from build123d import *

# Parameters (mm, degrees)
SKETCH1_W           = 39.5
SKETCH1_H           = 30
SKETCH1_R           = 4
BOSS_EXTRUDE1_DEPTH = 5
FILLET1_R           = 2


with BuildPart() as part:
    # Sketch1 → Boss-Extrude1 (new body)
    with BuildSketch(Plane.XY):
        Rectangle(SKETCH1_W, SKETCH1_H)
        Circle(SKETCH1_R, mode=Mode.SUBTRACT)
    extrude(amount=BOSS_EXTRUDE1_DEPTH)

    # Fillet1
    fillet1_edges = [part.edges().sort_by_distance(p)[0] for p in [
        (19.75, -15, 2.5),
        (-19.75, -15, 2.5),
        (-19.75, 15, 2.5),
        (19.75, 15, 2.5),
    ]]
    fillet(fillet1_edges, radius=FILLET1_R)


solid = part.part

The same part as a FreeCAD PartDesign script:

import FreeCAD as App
import Part
import Sketcher
from FreeCAD import Vector


def edges_at(feature, points):
    """Names of the edges that pass closest to the given points."""
    edges = feature.Shape.Edges
    near = lambda p: min(range(len(edges)), key=lambda i: edges[i].distToShape(Part.Vertex(*p))[0])
    return sorted({f"Edge{near(p) + 1}" for p in points})


def add_polygon(sketch, points):
    """Adds a closed chain of lines whose ends are joined by coincident constraints."""
    first, n = sketch.GeometryCount, len(points)
    for a, b in zip(points, points[1:] + points[:1]):
        sketch.addGeometry(Part.LineSegment(App.Vector(*a, 0), App.Vector(*b, 0)), False)
    for i in range(n):
        sketch.addConstraint(Sketcher.Constraint("Coincident", first + i, 2, first + (i + 1) % n, 1))

doc = App.newDocument("Part")
body = doc.addObject("PartDesign::Body", "Body")

sketch1 = body.newObject("Sketcher::SketchObject", "Sketch")
sketch1.AttachmentSupport = (doc.getObject("XY_Plane"), [""])
sketch1.MapMode = "FlatFace"
add_polygon(sketch1, [(-19.8, 15), (-19.8, -15), (19.8, -15), (19.8, 15)])
sketch1.addGeometry(Part.Circle(Vector(0, 0, 0), Vector(0, 0, 1), 4), False)
sketch1.addConstraint(Sketcher.Constraint("Vertical", 0))
sketch1.addConstraint(Sketcher.Constraint("Horizontal", 1))
sketch1.addConstraint(Sketcher.Constraint("Vertical", 2))
sketch1.addConstraint(Sketcher.Constraint("Horizontal", 3))
sketch1.addConstraint(Sketcher.Constraint("Coincident", 4, 3, -1, 1))
sketch1.addConstraint(Sketcher.Constraint("Symmetric", 0, 2, 2, 2, -1, 1))
sketch1.addConstraint(Sketcher.Constraint("Diameter", 4, 8.0))
sketch1.addConstraint(Sketcher.Constraint("DistanceY", 0, 2, 0, 1, 30.0))
sketch1.addConstraint(Sketcher.Constraint("DistanceX", 1, 1, 1, 2, 39.5))
pad1 = body.newObject("PartDesign::Pad", "Pad")
pad1.Profile = sketch1
pad1.Length = 5
doc.recompute()

fillet = body.newObject("PartDesign::Fillet", "Fillet")
fillet.Base = (pad1, edges_at(pad1, [
    (19.75, -15, 2.5),
    (-19.75, -15, 2.5),
    (-19.75, 15, 2.5),
    (19.75, 15, 2.5),
]))
fillet.Radius = 2

doc.recompute()
